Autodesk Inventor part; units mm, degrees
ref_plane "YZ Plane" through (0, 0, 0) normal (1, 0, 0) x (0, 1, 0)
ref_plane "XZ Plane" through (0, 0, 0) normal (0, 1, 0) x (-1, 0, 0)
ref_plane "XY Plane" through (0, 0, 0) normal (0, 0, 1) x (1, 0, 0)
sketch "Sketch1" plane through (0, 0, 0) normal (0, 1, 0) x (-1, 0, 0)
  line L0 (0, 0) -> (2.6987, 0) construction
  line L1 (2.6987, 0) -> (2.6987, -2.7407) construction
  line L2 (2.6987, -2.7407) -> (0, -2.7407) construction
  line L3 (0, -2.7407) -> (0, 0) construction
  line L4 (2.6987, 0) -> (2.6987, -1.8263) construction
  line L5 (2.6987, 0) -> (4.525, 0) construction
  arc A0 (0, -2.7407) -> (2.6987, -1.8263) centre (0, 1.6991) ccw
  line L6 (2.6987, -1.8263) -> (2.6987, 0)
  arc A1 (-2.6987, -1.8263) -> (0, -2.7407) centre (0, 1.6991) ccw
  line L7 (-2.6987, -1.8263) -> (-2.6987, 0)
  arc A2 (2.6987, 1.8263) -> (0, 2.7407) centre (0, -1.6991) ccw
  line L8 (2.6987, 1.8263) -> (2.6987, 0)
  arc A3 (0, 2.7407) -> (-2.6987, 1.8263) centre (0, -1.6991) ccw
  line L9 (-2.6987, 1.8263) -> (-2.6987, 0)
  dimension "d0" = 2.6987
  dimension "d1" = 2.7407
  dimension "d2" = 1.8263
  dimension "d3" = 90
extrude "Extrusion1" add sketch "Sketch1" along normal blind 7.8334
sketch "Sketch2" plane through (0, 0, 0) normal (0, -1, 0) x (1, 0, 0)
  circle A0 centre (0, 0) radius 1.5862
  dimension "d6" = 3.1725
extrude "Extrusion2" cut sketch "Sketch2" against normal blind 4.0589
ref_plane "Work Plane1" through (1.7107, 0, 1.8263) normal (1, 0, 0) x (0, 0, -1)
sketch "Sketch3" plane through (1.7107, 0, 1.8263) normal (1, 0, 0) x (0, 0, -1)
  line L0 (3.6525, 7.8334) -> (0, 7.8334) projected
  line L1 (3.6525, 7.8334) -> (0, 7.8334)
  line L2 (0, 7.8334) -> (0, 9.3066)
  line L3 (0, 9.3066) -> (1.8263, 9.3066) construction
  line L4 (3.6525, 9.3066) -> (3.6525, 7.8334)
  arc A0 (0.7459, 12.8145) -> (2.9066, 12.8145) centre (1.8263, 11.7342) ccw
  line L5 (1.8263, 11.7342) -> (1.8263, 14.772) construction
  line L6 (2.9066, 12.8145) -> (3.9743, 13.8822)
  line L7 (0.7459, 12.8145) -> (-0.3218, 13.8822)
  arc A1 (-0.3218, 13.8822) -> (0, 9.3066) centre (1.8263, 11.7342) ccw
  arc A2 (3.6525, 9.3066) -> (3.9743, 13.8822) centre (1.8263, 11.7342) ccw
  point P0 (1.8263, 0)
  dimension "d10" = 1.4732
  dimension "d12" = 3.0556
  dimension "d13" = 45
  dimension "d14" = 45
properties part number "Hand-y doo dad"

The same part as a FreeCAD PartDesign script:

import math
import FreeCAD as App
import Part
import Sketcher

doc = App.newDocument("Part")
body = doc.addObject("PartDesign::Body", "Body")

# Sketch on XZ plane
sketch1 = body.newObject("Sketcher::SketchObject", "Sketch")
sketch1.AttachmentSupport = (doc.getObject("XZ_Plane"), [""])
sketch1.MapMode = "FlatFace"
sketch1.addGeometry(Part.ArcOfCircle(Part.Circle(App.Vector(0, 1.7, 0), App.Vector(0, 0, 1), 4.4), math.radians(-90), math.radians(-53)), False)
sketch1.addGeometry(Part.ArcOfCircle(Part.Circle(App.Vector(0, 1.7, 0), App.Vector(0, 0, 1), 4.4), math.radians(-127), math.radians(-90)), False)
sketch1.addGeometry(Part.LineSegment(App.Vector(-2.7, -1.8, 0), App.Vector(-2.7, 1.8, 0)), False)
sketch1.addGeometry(Part.ArcOfCircle(Part.Circle(App.Vector(0, -1.7, 0), App.Vector(0, 0, 1), 4.4), math.radians(90), math.radians(127)), False)
sketch1.addGeometry(Part.ArcOfCircle(Part.Circle(App.Vector(0, -1.7, 0), App.Vector(0, 0, 1), 4.4), math.radians(53), math.radians(90)), False)
sketch1.addGeometry(Part.LineSegment(App.Vector(2.7, 1.8, 0), App.Vector(2.7, -1.8, 0)), False)
sketch1.addConstraint(Sketcher.Constraint("Tangent", 0, 1, 1, 2))
sketch1.addConstraint(Sketcher.Constraint("Coincident", 1, 1, 2, 1))
sketch1.addConstraint(Sketcher.Constraint("Coincident", 2, 2, 3, 2))
sketch1.addConstraint(Sketcher.Constraint("Tangent", 3, 1, 4, 2))
sketch1.addConstraint(Sketcher.Constraint("Coincident", 4, 1, 5, 1))
sketch1.addConstraint(Sketcher.Constraint("Coincident", 5, 2, 0, 2))
sketch1.addConstraint(Sketcher.Constraint("Vertical", 2))
sketch1.addConstraint(Sketcher.Constraint("Vertical", 5))
sketch1.addConstraint(Sketcher.Constraint("Equal", 0, 1))
sketch1.addConstraint(Sketcher.Constraint("Equal", 1, 3))
sketch1.addConstraint(Sketcher.Constraint("Equal", 3, 4))
sketch1.addConstraint(Sketcher.Constraint("Symmetric", 0, 3, 3, 3, -1, 1))
sketch1.addConstraint(Sketcher.Constraint("Symmetric", 2, 2, 4, 1, -2))
sketch1.addConstraint(Sketcher.Constraint("PointOnObject", 0, 1, -2))
sketch1.addConstraint(Sketcher.Constraint("PointOnObject", 3, 1, -2))
sketch1.addConstraint(Sketcher.Constraint("DistanceY", 0, 1, -1, 1, 2.7407))
sketch1.addConstraint(Sketcher.Constraint("DistanceX", 1, 1, -1, 1, 2.6987))
sketch1.addConstraint(Sketcher.Constraint("DistanceY", 1, 1, -1, 1, 1.8263))
pad1 = body.newObject("PartDesign::Pad", "Pad")
pad1.Profile = sketch1
pad1.Length = 7.8334
pad1.Reversed = True

# Sketch on XZ plane
sketch2 = body.newObject("Sketcher::SketchObject", "Sketch001")
sketch2.AttachmentSupport = (doc.getObject("XZ_Plane"), [""])
sketch2.MapMode = "FlatFace"
sketch2.addGeometry(Part.Circle(App.Vector(0, 0, 0), App.Vector(0, 0, 1), 1.6), False)
sketch2.addConstraint(Sketcher.Constraint("Coincident", 0, 3, -1, 1))
sketch2.addConstraint(Sketcher.Constraint("Diameter", 0, 3.1724))
pocket1 = body.newObject("PartDesign::Pocket", "Pocket")
pocket1.Profile = sketch2
pocket1.Length = 4.0589

doc.recompute()
